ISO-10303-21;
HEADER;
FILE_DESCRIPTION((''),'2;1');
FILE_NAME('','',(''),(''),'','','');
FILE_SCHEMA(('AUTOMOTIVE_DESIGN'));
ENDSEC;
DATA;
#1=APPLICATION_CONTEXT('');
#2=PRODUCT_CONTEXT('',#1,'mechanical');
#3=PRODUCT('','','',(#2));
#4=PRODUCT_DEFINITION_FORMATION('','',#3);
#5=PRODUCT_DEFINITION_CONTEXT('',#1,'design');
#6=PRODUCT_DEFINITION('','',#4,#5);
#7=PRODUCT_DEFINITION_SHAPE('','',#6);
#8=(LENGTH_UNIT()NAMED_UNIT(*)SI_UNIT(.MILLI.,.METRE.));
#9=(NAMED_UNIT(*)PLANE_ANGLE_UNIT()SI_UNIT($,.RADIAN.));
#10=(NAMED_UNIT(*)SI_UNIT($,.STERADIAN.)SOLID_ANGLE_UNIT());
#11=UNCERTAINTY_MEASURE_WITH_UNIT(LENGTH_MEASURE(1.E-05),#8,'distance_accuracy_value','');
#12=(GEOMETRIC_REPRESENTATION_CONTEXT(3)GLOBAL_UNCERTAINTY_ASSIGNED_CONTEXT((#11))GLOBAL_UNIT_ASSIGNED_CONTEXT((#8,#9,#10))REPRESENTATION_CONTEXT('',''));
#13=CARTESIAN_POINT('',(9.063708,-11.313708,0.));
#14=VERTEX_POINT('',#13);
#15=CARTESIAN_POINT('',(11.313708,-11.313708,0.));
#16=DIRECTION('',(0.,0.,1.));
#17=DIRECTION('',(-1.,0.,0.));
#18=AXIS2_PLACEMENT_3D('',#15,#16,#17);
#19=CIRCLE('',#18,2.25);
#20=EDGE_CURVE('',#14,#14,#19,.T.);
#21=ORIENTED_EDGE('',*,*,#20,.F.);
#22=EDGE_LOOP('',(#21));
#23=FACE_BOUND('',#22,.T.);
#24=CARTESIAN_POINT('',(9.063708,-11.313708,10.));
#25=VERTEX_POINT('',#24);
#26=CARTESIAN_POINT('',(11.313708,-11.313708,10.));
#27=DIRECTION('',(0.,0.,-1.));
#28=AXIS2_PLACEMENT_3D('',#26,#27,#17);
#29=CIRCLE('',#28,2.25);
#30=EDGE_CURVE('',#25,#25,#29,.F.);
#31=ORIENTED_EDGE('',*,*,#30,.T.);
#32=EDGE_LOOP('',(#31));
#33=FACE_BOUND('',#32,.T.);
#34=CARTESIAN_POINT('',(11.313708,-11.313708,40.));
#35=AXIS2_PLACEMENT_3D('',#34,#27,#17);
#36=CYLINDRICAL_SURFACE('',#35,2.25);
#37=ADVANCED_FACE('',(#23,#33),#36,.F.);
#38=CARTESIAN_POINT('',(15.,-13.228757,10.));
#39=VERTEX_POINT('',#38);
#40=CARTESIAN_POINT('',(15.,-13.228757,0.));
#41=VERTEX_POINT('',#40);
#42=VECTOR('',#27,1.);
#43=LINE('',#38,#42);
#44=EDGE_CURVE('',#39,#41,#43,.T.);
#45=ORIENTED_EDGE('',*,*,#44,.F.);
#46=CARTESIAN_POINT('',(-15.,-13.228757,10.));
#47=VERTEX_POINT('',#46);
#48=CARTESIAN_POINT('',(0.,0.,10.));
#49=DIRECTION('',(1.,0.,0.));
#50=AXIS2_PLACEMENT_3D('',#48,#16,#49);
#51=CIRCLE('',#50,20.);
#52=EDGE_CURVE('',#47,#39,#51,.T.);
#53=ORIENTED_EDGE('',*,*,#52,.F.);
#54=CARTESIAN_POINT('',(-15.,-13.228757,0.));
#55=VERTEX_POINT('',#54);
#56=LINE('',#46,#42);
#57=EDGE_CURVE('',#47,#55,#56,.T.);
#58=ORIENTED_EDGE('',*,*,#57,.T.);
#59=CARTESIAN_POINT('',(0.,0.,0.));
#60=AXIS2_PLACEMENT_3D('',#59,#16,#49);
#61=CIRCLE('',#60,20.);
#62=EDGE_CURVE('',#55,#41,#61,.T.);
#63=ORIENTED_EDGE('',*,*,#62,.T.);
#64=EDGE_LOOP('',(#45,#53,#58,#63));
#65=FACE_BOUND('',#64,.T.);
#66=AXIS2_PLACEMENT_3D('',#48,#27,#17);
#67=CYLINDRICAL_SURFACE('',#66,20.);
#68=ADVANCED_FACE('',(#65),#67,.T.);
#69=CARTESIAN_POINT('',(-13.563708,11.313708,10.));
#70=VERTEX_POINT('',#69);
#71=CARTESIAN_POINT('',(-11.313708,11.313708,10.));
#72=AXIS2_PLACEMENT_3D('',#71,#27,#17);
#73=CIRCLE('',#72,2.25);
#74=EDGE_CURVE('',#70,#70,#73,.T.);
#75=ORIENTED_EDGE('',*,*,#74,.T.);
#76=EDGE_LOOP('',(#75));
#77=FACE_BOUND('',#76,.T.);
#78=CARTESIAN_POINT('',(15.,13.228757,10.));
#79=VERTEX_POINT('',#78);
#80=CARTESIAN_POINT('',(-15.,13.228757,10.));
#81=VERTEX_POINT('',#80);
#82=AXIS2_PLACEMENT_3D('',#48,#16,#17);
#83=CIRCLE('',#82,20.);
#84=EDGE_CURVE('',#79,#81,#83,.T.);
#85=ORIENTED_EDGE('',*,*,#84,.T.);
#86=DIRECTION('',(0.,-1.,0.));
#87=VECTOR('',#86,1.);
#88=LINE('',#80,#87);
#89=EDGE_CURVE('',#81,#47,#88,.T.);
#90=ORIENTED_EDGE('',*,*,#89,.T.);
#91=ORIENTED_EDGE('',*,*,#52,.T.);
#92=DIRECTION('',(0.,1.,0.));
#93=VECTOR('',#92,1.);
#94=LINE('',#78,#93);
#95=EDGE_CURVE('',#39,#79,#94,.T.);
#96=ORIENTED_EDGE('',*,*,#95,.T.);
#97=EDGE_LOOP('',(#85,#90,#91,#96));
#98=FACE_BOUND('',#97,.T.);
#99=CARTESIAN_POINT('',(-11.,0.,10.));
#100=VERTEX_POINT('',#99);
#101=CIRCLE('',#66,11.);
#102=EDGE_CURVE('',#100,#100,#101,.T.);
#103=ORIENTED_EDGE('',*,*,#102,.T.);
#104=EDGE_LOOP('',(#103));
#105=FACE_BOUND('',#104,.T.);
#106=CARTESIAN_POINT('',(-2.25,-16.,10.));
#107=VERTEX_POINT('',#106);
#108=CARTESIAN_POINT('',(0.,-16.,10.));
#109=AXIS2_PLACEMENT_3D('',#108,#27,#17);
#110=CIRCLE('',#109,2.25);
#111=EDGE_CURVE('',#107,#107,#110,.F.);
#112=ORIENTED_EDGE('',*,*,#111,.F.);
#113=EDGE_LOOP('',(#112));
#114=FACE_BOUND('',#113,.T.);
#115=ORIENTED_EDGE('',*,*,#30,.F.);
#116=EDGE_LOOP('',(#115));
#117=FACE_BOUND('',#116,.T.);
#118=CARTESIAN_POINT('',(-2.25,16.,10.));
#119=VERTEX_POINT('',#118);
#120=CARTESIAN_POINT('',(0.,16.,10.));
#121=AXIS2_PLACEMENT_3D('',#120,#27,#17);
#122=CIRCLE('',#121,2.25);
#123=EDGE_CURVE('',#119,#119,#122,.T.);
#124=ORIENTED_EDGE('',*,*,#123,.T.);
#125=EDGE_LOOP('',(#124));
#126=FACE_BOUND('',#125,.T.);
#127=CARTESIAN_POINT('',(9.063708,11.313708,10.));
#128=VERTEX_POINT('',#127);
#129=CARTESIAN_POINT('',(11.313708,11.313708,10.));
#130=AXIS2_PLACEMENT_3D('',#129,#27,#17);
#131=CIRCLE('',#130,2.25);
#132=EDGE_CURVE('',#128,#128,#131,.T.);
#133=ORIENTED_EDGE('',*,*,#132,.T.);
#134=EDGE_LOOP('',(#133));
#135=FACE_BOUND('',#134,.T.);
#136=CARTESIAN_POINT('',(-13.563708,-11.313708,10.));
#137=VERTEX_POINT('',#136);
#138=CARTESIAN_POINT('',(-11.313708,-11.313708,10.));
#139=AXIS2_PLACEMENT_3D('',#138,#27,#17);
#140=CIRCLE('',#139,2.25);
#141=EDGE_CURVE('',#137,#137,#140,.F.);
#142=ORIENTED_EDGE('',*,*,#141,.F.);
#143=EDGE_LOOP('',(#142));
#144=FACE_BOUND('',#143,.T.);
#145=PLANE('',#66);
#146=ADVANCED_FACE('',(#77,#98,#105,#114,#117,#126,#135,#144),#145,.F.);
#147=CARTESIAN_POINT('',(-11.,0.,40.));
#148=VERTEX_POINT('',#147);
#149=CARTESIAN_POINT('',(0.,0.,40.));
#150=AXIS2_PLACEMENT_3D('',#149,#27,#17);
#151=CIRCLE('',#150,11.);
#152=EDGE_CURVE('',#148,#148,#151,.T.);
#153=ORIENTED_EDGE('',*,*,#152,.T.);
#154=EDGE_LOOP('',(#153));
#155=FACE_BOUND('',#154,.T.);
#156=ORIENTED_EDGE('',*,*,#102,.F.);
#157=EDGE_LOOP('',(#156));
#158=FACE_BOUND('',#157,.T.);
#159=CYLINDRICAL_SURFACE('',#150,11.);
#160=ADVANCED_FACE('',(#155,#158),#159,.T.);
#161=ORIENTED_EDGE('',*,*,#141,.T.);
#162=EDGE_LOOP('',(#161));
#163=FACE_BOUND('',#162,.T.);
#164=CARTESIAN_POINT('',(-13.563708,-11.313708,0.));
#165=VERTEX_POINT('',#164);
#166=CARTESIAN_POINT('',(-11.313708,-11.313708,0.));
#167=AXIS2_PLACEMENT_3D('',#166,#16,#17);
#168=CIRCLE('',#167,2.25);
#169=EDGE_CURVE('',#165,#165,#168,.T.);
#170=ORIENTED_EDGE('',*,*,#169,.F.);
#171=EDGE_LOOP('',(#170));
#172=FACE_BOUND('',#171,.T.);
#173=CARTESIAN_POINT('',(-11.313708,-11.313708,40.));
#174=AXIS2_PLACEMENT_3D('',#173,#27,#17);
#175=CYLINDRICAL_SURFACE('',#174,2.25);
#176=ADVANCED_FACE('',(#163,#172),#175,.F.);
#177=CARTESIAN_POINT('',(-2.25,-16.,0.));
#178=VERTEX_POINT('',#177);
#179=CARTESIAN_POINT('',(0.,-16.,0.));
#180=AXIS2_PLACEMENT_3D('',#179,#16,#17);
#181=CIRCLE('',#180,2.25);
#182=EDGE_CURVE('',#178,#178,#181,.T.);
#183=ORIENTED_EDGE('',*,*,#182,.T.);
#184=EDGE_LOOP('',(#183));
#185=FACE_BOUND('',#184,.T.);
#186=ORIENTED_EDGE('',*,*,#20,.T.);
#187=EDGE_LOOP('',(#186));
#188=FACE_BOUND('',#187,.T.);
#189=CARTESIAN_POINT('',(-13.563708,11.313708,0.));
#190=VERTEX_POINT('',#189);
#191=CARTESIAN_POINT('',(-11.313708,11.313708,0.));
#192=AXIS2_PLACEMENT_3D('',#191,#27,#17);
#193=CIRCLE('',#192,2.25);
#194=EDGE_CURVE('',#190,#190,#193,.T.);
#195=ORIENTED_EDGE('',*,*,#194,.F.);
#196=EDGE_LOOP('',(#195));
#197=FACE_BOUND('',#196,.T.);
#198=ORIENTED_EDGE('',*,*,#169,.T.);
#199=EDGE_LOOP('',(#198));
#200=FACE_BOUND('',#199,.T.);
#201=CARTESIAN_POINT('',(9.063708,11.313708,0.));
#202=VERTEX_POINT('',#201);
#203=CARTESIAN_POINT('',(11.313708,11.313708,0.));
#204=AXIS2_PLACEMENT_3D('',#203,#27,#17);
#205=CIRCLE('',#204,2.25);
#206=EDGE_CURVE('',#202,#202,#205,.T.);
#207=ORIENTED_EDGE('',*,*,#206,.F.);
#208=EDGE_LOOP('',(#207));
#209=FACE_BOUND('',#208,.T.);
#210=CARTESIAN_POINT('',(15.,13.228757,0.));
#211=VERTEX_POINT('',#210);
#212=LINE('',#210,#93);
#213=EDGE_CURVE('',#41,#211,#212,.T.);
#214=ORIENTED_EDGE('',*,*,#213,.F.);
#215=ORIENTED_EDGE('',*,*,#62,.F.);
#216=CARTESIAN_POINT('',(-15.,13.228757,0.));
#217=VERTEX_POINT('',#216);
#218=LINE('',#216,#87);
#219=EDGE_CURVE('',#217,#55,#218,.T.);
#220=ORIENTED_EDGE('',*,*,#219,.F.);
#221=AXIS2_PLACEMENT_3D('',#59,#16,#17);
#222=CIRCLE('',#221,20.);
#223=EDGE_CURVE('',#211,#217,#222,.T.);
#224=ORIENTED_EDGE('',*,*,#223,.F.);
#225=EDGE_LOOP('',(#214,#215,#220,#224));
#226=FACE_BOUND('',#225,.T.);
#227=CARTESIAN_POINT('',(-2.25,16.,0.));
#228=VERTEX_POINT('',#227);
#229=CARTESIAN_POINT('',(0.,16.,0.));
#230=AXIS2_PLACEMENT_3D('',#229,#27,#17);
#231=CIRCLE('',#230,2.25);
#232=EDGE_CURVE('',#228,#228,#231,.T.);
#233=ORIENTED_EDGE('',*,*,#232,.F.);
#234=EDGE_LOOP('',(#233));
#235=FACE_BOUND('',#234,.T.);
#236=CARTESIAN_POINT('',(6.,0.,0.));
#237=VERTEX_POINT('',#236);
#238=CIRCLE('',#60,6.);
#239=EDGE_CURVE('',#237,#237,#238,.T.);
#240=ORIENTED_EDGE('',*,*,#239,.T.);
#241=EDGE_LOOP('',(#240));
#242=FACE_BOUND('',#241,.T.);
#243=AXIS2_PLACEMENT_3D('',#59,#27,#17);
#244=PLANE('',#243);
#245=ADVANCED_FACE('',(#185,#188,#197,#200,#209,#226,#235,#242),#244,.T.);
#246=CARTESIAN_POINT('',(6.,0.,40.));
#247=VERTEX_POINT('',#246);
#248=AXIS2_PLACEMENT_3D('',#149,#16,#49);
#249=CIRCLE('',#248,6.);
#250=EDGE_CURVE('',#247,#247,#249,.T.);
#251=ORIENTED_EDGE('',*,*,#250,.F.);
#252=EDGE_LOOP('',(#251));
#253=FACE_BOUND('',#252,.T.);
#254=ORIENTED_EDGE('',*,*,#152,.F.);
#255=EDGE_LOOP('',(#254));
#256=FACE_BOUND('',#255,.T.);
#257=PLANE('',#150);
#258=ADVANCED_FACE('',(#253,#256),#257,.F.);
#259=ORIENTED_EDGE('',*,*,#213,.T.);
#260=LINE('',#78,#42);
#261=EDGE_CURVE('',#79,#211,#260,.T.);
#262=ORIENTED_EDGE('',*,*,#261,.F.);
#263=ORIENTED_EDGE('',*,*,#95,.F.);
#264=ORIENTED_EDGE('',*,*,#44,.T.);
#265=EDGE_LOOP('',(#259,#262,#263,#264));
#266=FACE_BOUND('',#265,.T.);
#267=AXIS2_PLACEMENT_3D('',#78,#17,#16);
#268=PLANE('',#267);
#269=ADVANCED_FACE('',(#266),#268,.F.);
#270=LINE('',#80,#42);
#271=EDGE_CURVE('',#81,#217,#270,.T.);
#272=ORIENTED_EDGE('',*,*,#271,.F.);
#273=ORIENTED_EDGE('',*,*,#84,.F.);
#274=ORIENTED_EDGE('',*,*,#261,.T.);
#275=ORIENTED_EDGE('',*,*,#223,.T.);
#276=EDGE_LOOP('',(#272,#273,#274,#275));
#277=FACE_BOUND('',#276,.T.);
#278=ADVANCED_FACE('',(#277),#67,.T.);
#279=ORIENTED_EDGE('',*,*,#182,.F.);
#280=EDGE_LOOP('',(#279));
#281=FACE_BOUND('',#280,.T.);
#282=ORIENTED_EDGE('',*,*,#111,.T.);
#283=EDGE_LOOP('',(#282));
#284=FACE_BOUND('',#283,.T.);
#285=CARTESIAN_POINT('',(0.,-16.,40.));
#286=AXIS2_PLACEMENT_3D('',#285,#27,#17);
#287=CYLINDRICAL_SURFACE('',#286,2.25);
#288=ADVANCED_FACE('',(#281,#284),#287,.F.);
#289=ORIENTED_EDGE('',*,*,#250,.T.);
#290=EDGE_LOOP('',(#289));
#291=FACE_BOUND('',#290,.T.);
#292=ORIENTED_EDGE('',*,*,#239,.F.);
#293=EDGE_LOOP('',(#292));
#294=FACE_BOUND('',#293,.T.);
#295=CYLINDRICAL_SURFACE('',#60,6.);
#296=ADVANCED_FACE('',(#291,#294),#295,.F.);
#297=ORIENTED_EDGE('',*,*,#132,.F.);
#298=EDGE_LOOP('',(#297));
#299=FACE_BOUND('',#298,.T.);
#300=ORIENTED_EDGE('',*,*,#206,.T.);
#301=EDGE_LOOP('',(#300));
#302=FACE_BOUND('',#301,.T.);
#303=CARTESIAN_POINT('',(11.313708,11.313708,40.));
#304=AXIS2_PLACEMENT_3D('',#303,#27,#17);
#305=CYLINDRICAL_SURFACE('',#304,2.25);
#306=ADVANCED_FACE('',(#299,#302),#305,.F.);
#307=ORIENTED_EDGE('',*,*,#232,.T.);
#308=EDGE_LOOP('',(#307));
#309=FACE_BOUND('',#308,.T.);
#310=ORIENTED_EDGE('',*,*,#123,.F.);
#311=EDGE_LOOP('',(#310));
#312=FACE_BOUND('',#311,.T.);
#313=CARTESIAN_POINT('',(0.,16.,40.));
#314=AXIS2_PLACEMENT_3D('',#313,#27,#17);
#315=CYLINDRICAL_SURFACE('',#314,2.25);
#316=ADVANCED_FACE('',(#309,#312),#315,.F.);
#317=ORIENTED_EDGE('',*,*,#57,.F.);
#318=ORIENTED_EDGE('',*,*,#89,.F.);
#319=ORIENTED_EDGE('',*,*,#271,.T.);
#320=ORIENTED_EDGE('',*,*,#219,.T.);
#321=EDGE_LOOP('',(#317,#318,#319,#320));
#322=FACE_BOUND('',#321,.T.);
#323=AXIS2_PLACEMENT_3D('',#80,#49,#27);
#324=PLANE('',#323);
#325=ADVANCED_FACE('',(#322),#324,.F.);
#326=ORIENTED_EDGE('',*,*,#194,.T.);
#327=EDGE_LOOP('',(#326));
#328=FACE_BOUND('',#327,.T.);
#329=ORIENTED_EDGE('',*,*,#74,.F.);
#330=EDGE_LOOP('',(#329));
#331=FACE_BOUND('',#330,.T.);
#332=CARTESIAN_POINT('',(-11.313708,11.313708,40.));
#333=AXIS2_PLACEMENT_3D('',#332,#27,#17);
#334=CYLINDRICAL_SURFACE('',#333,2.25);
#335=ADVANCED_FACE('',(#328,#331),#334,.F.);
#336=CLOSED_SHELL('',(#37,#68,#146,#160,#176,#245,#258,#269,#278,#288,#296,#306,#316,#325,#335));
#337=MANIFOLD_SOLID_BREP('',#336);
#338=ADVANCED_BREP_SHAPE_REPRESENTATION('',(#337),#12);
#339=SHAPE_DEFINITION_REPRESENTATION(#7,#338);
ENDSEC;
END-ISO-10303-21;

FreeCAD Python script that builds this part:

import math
import FreeCAD as App
import Part
import Sketcher

V = App.Vector
Q = App.Units.Quantity

doc = App.newDocument("Part")
body = doc.addObject("PartDesign::Body", "Body")

# Sketch on XY plane
sketch1 = doc.addObject("Sketcher::SketchObject", "Sketch")
body.addObject(sketch1)
sketch1.AttachmentSupport = (doc.XY_Plane, [""])
sketch1.MapMode = "FlatFace"
sketch1.addGeometry([
    Part.LineSegment(V(-15, 13.228757, 0), V(-15, -13.228757, 0)),
    Part.ArcOfCircle(Part.Circle(V(0, 0, 0), V(0, 0, 1), 20), math.radians(-138.590378), math.radians(-41.409622)),
    Part.LineSegment(V(15, -13.228757, 0), V(15, 13.228757, 0)),
    Part.ArcOfCircle(Part.Circle(V(0, 0, 0), V(0, 0, 1), 20), math.radians(41.409622), math.radians(138.590378)),
], False)
sketch1.addConstraint([
    Sketcher.Constraint("Coincident", 0, 2, 1, 1),
    Sketcher.Constraint("Coincident", 1, 2, 2, 1),
    Sketcher.Constraint("Coincident", 2, 2, 3, 1),
    Sketcher.Constraint("Coincident", 3, 2, 0, 1),
    Sketcher.Constraint("Vertical", 0),
    Sketcher.Constraint("Vertical", 2),
    Sketcher.Constraint("Coincident", 1, 3, -1, 1),
    Sketcher.Constraint("Coincident", 3, 3, -1, 1),
    Sketcher.Constraint("Equal", 1, 3),
    Sketcher.Constraint("Horizontal", 0, 2, 1, 2),
    Sketcher.Constraint("Radius", 1, Q("20 mm")),
    Sketcher.Constraint("DistanceX", 0, 2, -1, 1, Q("15 mm")),
])
pad1 = doc.addObject("PartDesign::Pad", "Pad")
body.addObject(pad1)
pad1.Profile = sketch1
pad1.Length = 10

# Sketch on XY plane
sketch2 = doc.addObject("Sketcher::SketchObject", "Sketch001")
body.addObject(sketch2)
sketch2.AttachmentSupport = (doc.XY_Plane, [""])
sketch2.MapMode = "FlatFace"
sketch2.addGeometry(Part.Circle(V(0, 0, 0), V(0, 0, 1), 11), False)
sketch2.addConstraint([
    Sketcher.Constraint("Coincident", 0, 3, -1, 1),
    Sketcher.Constraint("Diameter", 0, Q("22 mm")),
])
pad2 = doc.addObject("PartDesign::Pad", "Pad001")
body.addObject(pad2)
pad2.Profile = sketch2
pad2.Length = 40

# Sketch on XY plane
sketch3 = doc.addObject("Sketcher::SketchObject", "Sketch002")
body.addObject(sketch3)
sketch3.AttachmentSupport = (doc.XY_Plane, [""])
sketch3.MapMode = "FlatFace"
sketch3.AttachmentOffset = App.Placement(V(0, 0, 40), App.Rotation())
sketch3.addGeometry(Part.Circle(V(0, 0, 0), V(0, 0, 1), 6), False)
sketch3.addConstraint([
    Sketcher.Constraint("Coincident", 0, 3, -1, 1),
    Sketcher.Constraint("Diameter", 0, Q("12 mm")),
])
pocket1 = doc.addObject("PartDesign::Pocket", "Pocket")
body.addObject(pocket1)
pocket1.Profile = sketch3
pocket1.Type = "ThroughAll"

# Sketch on XY plane
sketch4 = doc.addObject("Sketcher::SketchObject", "Sketch003")
body.addObject(sketch4)
sketch4.AttachmentSupport = (doc.XY_Plane, [""])
sketch4.MapMode = "FlatFace"
sketch4.addGeometry([
    Part.Circle(V(11.313708, 11.313708, 0), V(0, 0, 1), 2.25),
    Part.Circle(V(0, 16, 0), V(0, 0, 1), 2.25),
    Part.Circle(V(-11.313708, 11.313708, 0), V(0, 0, 1), 2.25),
], False)
sketch4.addConstraint([
    Sketcher.Constraint("Equal", 0, 1),
    Sketcher.Constraint("Equal", 1, 2),
    Sketcher.Constraint("Symmetric", 0, 3, 2, 3, -2),
    Sketcher.Constraint("PointOnObject", 1, 3, -2),
    Sketcher.Constraint("Diameter", 0, Q("4.5 mm")),
    Sketcher.Constraint("DistanceY", -1, 1, 1, 3, Q("16 mm")),
    Sketcher.Constraint("DistanceX", -1, 1, 0, 3, Q("11.313708 mm")),
    Sketcher.Constraint("DistanceY", -1, 1, 0, 3, Q("11.313708 mm")),
])
pocket2 = doc.addObject("PartDesign::Pocket", "Pocket001")
body.addObject(pocket2)
pocket2.Profile = sketch4
pocket2.Type = "ThroughAll"
pocket2.Reversed = True
doc.recompute()

mirrored = doc.addObject("PartDesign::Mirrored", "Mirrored")
body.addObject(mirrored)
mirrored.Originals = [pocket2]
mirrored.MirrorPlane = (doc.XZ_Plane, [""])
body.Tip = mirrored

doc.recompute()
